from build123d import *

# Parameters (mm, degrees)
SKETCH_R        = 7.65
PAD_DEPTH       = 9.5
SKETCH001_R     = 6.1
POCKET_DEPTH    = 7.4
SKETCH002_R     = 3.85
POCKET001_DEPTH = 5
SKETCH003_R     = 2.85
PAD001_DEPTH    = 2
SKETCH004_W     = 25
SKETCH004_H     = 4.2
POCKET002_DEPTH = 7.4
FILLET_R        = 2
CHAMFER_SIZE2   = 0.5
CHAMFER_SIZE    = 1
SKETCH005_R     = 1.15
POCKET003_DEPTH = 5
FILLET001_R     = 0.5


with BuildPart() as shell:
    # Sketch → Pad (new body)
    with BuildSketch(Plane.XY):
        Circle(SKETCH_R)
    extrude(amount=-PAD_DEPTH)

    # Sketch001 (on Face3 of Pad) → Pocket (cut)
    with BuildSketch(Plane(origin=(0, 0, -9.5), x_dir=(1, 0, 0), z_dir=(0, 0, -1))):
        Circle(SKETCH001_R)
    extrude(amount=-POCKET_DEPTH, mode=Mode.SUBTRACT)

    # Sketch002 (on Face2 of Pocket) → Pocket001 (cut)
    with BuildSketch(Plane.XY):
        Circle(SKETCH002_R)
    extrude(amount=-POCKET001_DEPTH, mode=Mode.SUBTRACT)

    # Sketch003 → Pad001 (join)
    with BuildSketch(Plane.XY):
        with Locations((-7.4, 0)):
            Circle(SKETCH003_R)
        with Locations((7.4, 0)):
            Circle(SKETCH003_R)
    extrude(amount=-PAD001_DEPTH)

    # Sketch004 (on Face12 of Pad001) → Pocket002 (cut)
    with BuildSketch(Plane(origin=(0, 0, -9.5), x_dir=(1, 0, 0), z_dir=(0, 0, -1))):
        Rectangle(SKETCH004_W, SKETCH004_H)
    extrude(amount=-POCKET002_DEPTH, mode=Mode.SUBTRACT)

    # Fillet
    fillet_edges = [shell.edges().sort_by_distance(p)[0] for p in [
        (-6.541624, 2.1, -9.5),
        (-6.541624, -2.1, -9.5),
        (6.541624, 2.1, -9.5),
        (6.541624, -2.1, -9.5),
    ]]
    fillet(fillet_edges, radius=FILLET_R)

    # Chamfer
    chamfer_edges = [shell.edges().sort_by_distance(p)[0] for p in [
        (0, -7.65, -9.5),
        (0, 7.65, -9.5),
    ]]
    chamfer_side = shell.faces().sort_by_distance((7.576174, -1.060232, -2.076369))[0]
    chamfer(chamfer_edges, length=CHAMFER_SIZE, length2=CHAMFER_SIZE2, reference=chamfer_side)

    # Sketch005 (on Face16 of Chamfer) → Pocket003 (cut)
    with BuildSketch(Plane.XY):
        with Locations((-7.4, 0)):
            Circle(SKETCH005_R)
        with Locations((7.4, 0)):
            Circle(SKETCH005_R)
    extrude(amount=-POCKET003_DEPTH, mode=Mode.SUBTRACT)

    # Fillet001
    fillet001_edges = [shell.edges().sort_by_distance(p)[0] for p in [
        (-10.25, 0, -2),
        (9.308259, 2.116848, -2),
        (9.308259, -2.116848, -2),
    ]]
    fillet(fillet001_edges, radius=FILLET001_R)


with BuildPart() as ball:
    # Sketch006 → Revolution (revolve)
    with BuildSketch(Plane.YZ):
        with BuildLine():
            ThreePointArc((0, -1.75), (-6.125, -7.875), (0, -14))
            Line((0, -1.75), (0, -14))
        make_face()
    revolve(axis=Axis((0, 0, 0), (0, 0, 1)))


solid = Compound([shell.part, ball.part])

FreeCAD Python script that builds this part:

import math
import FreeCAD as App
import Part
import Sketcher

V = App.Vector


def edges_at(feature, points):
    """Names of the edges that pass closest to the given points."""
    edges = feature.Shape.Edges
    near = lambda p: min(range(len(edges)), key=lambda i: edges[i].distToShape(Part.Vertex(*p))[0])
    return sorted({f"Edge{near(p) + 1}" for p in points})

doc = App.newDocument("Part")
body = doc.addObject("PartDesign::Body", "Body")

# Sketch on XY plane
sketch1 = body.newObject("Sketcher::SketchObject", "Sketch")
sketch1.AttachmentSupport = (doc.getObject("XY_Plane"), [""])
sketch1.MapMode = "FlatFace"
sketch1.addGeometry(Part.Circle(V(0, 0, 0), V(0, 0, 1), 8), False)
sketch1.addConstraint([
    Sketcher.Constraint("Coincident", 0, 3, -1, 1),
    Sketcher.Constraint("Diameter", 0, 15.3),
])
pad1 = body.newObject("PartDesign::Pad", "Pad")
pad1.Profile = sketch1
pad1.Length = 9.5
pad1.Reversed = True

# Sketch on XY plane
sketch2 = body.newObject("Sketcher::SketchObject", "Sketch001")
sketch2.AttachmentSupport = (doc.getObject("XY_Plane"), [""])
sketch2.MapMode = "FlatFace"
sketch2.AttachmentOffset = App.Placement(V(0, 0, -9.5), App.Rotation())
sketch2.addGeometry(Part.Circle(V(0, 0, 0), V(0, 0, 1), 6), False)
sketch2.addConstraint([
    Sketcher.Constraint("Coincident", 0, 3, -1, 1),
    Sketcher.Constraint("Diameter", 0, 12.2),
])
pocket1 = body.newObject("PartDesign::Pocket", "Pocket")
pocket1.Profile = sketch2
pocket1.Length = 7.4
pocket1.Reversed = True

# Sketch on XY plane
sketch3 = body.newObject("Sketcher::SketchObject", "Sketch002")
sketch3.AttachmentSupport = (doc.getObject("XY_Plane"), [""])
sketch3.MapMode = "FlatFace"
sketch3.addGeometry(Part.Circle(V(0, 0, 0), V(0, 0, 1), 3.9), False)
sketch3.addConstraint([
    Sketcher.Constraint("Coincident", 0, 3, -1, 1),
    Sketcher.Constraint("Diameter", 0, 7.7),
])
pocket2 = body.newObject("PartDesign::Pocket", "Pocket001")
pocket2.Profile = sketch3
pocket2.Length = 5

# Sketch on XY plane
sketch4 = body.newObject("Sketcher::SketchObject", "Sketch003")
sketch4.AttachmentSupport = (doc.getObject("XY_Plane"), [""])
sketch4.MapMode = "FlatFace"
sketch4.addGeometry([
    Part.Circle(V(-7.4, 0, 0), V(0, 0, 1), 2.9),
    Part.Circle(V(7.4, 0, 0), V(0, 0, 1), 2.9),
], False)
sketch4.addConstraint([
    Sketcher.Constraint("Equal", 0, 1),
    Sketcher.Constraint("Symmetric", 0, 3, 1, 3, -1, 1),
    Sketcher.Constraint("PointOnObject", 0, 3, -1),
    Sketcher.Constraint("Diameter", 0, 5.7),
    Sketcher.Constraint("DistanceX", 0, 3, -1, 1, 7.4),
])
pad2 = body.newObject("PartDesign::Pad", "Pad001")
pad2.Profile = sketch4
pad2.Length = 2
pad2.Reversed = True

# Sketch on XY plane
sketch5 = body.newObject("Sketcher::SketchObject", "Sketch004")
sketch5.AttachmentSupport = (doc.getObject("XY_Plane"), [""])
sketch5.MapMode = "FlatFace"
sketch5.AttachmentOffset = App.Placement(V(0, 0, -9.5), App.Rotation())
sketch5.addGeometry([
    Part.LineSegment(V(-12.5, -2.1, 0), V(-12.5, 2.1, 0)),
    Part.LineSegment(V(-12.5, 2.1, 0), V(12.5, 2.1, 0)),
    Part.LineSegment(V(12.5, 2.1, 0), V(12.5, -2.1, 0)),
    Part.LineSegment(V(12.5, -2.1, 0), V(-12.5, -2.1, 0)),
], False)
sketch5.addConstraint([
    Sketcher.Constraint("Coincident", 0, 2, 1, 1),
    Sketcher.Constraint("Coincident", 1, 2, 2, 1),
    Sketcher.Constraint("Coincident", 2, 2, 3, 1),
    Sketcher.Constraint("Coincident", 3, 2, 0, 1),
    Sketcher.Constraint("Vertical", 0),
    Sketcher.Constraint("Horizontal", 1),
    Sketcher.Constraint("Vertical", 2),
    Sketcher.Constraint("Horizontal", 3),
    Sketcher.Constraint("Symmetric", 0, 2, 2, 2, -1, 1),
    Sketcher.Constraint("DistanceX", 1, 1, 1, 2, 25.0),
    Sketcher.Constraint("DistanceY", 0, 1, 0, 2, 4.2),
])
pocket3 = body.newObject("PartDesign::Pocket", "Pocket002")
pocket3.Profile = sketch5
pocket3.Length = 7.4
pocket3.Reversed = True
doc.recompute()

fillet = body.newObject("PartDesign::Fillet", "Fillet")
fillet.Base = (pocket3, edges_at(pocket3, [
    (-6.542, 2.1, -9.5),
    (-6.542, -2.1, -9.5),
    (6.542, 2.1, -9.5),
    (6.542, -2.1, -9.5),
]))
fillet.Radius = 2
doc.recompute()

chamfer = body.newObject("PartDesign::Chamfer", "Chamfer")
chamfer.Base = (fillet, edges_at(fillet, [(0, -7.65, -9.5), (0, 7.65, -9.5)]))
chamfer.ChamferType = "Two distances"
chamfer.Size = 1
chamfer.Size2 = 0.5

# Sketch on XY plane
sketch6 = body.newObject("Sketcher::SketchObject", "Sketch005")
sketch6.AttachmentSupport = (doc.getObject("XY_Plane"), [""])
sketch6.MapMode = "FlatFace"
sketch6.addGeometry([
    Part.Circle(V(-7.4, 0, 0), V(0, 0, 1), 1.1),
    Part.Circle(V(7.4, 0, 0), V(0, 0, 1), 1.1),
], False)
sketch6.addConstraint([
    Sketcher.Constraint("Equal", 0, 1),
    Sketcher.Constraint("Symmetric", 0, 3, 1, 3, -1, 1),
    Sketcher.Constraint("PointOnObject", 0, 3, -1),
    Sketcher.Constraint("Diameter", 0, 2.3),
    Sketcher.Constraint("DistanceX", 0, 3, -1, 1, 7.4),
])
pocket4 = body.newObject("PartDesign::Pocket", "Pocket003")
pocket4.Profile = sketch6
pocket4.Length = 5
doc.recompute()

fillet2 = body.newObject("PartDesign::Fillet", "Fillet001")
fillet2.Base = (pocket4, edges_at(pocket4, [(-10.25, 0, -2), (10.25, 0, -2), (10.25, 0, -2)]))
fillet2.Radius = 0.5
body2 = doc.addObject("PartDesign::Body", "Body001")

# Sketch on YZ plane
sketch7 = body2.newObject("Sketcher::SketchObject", "Sketch006")
sketch7.AttachmentSupport = (doc.getObject("YZ_Plane001"), [""])
sketch7.MapMode = "FlatFace"
sketch7.addGeometry([
    Part.ArcOfCircle(Part.Circle(V(0, -8, 0), V(0, 0, 1), 6), math.radians(90), math.radians(270)),
    Part.LineSegment(V(0, -14, 0), V(0, -2, 0)),
], False)
sketch7.addConstraint([
    Sketcher.Constraint("Coincident", 0, 1, 1, 2),
    Sketcher.Constraint("Coincident", 1, 1, 0, 2),
    Sketcher.Constraint("Vertical", 1),
    Sketcher.Constraint("PointOnObject", 0, 3, -2),
    Sketcher.Constraint("PointOnObject", 0, 1, -2),
    Sketcher.Constraint("DistanceY", 1, 1, -1, 1, 14.0),
    Sketcher.Constraint("Radius", 0, 6.125),
])
revolution = body2.newObject("PartDesign::Revolution", "Revolution")
revolution.Profile = sketch7
revolution.ReferenceAxis = (sketch7, ["V_Axis"])
revolution.Angle = 360

doc.recompute()
